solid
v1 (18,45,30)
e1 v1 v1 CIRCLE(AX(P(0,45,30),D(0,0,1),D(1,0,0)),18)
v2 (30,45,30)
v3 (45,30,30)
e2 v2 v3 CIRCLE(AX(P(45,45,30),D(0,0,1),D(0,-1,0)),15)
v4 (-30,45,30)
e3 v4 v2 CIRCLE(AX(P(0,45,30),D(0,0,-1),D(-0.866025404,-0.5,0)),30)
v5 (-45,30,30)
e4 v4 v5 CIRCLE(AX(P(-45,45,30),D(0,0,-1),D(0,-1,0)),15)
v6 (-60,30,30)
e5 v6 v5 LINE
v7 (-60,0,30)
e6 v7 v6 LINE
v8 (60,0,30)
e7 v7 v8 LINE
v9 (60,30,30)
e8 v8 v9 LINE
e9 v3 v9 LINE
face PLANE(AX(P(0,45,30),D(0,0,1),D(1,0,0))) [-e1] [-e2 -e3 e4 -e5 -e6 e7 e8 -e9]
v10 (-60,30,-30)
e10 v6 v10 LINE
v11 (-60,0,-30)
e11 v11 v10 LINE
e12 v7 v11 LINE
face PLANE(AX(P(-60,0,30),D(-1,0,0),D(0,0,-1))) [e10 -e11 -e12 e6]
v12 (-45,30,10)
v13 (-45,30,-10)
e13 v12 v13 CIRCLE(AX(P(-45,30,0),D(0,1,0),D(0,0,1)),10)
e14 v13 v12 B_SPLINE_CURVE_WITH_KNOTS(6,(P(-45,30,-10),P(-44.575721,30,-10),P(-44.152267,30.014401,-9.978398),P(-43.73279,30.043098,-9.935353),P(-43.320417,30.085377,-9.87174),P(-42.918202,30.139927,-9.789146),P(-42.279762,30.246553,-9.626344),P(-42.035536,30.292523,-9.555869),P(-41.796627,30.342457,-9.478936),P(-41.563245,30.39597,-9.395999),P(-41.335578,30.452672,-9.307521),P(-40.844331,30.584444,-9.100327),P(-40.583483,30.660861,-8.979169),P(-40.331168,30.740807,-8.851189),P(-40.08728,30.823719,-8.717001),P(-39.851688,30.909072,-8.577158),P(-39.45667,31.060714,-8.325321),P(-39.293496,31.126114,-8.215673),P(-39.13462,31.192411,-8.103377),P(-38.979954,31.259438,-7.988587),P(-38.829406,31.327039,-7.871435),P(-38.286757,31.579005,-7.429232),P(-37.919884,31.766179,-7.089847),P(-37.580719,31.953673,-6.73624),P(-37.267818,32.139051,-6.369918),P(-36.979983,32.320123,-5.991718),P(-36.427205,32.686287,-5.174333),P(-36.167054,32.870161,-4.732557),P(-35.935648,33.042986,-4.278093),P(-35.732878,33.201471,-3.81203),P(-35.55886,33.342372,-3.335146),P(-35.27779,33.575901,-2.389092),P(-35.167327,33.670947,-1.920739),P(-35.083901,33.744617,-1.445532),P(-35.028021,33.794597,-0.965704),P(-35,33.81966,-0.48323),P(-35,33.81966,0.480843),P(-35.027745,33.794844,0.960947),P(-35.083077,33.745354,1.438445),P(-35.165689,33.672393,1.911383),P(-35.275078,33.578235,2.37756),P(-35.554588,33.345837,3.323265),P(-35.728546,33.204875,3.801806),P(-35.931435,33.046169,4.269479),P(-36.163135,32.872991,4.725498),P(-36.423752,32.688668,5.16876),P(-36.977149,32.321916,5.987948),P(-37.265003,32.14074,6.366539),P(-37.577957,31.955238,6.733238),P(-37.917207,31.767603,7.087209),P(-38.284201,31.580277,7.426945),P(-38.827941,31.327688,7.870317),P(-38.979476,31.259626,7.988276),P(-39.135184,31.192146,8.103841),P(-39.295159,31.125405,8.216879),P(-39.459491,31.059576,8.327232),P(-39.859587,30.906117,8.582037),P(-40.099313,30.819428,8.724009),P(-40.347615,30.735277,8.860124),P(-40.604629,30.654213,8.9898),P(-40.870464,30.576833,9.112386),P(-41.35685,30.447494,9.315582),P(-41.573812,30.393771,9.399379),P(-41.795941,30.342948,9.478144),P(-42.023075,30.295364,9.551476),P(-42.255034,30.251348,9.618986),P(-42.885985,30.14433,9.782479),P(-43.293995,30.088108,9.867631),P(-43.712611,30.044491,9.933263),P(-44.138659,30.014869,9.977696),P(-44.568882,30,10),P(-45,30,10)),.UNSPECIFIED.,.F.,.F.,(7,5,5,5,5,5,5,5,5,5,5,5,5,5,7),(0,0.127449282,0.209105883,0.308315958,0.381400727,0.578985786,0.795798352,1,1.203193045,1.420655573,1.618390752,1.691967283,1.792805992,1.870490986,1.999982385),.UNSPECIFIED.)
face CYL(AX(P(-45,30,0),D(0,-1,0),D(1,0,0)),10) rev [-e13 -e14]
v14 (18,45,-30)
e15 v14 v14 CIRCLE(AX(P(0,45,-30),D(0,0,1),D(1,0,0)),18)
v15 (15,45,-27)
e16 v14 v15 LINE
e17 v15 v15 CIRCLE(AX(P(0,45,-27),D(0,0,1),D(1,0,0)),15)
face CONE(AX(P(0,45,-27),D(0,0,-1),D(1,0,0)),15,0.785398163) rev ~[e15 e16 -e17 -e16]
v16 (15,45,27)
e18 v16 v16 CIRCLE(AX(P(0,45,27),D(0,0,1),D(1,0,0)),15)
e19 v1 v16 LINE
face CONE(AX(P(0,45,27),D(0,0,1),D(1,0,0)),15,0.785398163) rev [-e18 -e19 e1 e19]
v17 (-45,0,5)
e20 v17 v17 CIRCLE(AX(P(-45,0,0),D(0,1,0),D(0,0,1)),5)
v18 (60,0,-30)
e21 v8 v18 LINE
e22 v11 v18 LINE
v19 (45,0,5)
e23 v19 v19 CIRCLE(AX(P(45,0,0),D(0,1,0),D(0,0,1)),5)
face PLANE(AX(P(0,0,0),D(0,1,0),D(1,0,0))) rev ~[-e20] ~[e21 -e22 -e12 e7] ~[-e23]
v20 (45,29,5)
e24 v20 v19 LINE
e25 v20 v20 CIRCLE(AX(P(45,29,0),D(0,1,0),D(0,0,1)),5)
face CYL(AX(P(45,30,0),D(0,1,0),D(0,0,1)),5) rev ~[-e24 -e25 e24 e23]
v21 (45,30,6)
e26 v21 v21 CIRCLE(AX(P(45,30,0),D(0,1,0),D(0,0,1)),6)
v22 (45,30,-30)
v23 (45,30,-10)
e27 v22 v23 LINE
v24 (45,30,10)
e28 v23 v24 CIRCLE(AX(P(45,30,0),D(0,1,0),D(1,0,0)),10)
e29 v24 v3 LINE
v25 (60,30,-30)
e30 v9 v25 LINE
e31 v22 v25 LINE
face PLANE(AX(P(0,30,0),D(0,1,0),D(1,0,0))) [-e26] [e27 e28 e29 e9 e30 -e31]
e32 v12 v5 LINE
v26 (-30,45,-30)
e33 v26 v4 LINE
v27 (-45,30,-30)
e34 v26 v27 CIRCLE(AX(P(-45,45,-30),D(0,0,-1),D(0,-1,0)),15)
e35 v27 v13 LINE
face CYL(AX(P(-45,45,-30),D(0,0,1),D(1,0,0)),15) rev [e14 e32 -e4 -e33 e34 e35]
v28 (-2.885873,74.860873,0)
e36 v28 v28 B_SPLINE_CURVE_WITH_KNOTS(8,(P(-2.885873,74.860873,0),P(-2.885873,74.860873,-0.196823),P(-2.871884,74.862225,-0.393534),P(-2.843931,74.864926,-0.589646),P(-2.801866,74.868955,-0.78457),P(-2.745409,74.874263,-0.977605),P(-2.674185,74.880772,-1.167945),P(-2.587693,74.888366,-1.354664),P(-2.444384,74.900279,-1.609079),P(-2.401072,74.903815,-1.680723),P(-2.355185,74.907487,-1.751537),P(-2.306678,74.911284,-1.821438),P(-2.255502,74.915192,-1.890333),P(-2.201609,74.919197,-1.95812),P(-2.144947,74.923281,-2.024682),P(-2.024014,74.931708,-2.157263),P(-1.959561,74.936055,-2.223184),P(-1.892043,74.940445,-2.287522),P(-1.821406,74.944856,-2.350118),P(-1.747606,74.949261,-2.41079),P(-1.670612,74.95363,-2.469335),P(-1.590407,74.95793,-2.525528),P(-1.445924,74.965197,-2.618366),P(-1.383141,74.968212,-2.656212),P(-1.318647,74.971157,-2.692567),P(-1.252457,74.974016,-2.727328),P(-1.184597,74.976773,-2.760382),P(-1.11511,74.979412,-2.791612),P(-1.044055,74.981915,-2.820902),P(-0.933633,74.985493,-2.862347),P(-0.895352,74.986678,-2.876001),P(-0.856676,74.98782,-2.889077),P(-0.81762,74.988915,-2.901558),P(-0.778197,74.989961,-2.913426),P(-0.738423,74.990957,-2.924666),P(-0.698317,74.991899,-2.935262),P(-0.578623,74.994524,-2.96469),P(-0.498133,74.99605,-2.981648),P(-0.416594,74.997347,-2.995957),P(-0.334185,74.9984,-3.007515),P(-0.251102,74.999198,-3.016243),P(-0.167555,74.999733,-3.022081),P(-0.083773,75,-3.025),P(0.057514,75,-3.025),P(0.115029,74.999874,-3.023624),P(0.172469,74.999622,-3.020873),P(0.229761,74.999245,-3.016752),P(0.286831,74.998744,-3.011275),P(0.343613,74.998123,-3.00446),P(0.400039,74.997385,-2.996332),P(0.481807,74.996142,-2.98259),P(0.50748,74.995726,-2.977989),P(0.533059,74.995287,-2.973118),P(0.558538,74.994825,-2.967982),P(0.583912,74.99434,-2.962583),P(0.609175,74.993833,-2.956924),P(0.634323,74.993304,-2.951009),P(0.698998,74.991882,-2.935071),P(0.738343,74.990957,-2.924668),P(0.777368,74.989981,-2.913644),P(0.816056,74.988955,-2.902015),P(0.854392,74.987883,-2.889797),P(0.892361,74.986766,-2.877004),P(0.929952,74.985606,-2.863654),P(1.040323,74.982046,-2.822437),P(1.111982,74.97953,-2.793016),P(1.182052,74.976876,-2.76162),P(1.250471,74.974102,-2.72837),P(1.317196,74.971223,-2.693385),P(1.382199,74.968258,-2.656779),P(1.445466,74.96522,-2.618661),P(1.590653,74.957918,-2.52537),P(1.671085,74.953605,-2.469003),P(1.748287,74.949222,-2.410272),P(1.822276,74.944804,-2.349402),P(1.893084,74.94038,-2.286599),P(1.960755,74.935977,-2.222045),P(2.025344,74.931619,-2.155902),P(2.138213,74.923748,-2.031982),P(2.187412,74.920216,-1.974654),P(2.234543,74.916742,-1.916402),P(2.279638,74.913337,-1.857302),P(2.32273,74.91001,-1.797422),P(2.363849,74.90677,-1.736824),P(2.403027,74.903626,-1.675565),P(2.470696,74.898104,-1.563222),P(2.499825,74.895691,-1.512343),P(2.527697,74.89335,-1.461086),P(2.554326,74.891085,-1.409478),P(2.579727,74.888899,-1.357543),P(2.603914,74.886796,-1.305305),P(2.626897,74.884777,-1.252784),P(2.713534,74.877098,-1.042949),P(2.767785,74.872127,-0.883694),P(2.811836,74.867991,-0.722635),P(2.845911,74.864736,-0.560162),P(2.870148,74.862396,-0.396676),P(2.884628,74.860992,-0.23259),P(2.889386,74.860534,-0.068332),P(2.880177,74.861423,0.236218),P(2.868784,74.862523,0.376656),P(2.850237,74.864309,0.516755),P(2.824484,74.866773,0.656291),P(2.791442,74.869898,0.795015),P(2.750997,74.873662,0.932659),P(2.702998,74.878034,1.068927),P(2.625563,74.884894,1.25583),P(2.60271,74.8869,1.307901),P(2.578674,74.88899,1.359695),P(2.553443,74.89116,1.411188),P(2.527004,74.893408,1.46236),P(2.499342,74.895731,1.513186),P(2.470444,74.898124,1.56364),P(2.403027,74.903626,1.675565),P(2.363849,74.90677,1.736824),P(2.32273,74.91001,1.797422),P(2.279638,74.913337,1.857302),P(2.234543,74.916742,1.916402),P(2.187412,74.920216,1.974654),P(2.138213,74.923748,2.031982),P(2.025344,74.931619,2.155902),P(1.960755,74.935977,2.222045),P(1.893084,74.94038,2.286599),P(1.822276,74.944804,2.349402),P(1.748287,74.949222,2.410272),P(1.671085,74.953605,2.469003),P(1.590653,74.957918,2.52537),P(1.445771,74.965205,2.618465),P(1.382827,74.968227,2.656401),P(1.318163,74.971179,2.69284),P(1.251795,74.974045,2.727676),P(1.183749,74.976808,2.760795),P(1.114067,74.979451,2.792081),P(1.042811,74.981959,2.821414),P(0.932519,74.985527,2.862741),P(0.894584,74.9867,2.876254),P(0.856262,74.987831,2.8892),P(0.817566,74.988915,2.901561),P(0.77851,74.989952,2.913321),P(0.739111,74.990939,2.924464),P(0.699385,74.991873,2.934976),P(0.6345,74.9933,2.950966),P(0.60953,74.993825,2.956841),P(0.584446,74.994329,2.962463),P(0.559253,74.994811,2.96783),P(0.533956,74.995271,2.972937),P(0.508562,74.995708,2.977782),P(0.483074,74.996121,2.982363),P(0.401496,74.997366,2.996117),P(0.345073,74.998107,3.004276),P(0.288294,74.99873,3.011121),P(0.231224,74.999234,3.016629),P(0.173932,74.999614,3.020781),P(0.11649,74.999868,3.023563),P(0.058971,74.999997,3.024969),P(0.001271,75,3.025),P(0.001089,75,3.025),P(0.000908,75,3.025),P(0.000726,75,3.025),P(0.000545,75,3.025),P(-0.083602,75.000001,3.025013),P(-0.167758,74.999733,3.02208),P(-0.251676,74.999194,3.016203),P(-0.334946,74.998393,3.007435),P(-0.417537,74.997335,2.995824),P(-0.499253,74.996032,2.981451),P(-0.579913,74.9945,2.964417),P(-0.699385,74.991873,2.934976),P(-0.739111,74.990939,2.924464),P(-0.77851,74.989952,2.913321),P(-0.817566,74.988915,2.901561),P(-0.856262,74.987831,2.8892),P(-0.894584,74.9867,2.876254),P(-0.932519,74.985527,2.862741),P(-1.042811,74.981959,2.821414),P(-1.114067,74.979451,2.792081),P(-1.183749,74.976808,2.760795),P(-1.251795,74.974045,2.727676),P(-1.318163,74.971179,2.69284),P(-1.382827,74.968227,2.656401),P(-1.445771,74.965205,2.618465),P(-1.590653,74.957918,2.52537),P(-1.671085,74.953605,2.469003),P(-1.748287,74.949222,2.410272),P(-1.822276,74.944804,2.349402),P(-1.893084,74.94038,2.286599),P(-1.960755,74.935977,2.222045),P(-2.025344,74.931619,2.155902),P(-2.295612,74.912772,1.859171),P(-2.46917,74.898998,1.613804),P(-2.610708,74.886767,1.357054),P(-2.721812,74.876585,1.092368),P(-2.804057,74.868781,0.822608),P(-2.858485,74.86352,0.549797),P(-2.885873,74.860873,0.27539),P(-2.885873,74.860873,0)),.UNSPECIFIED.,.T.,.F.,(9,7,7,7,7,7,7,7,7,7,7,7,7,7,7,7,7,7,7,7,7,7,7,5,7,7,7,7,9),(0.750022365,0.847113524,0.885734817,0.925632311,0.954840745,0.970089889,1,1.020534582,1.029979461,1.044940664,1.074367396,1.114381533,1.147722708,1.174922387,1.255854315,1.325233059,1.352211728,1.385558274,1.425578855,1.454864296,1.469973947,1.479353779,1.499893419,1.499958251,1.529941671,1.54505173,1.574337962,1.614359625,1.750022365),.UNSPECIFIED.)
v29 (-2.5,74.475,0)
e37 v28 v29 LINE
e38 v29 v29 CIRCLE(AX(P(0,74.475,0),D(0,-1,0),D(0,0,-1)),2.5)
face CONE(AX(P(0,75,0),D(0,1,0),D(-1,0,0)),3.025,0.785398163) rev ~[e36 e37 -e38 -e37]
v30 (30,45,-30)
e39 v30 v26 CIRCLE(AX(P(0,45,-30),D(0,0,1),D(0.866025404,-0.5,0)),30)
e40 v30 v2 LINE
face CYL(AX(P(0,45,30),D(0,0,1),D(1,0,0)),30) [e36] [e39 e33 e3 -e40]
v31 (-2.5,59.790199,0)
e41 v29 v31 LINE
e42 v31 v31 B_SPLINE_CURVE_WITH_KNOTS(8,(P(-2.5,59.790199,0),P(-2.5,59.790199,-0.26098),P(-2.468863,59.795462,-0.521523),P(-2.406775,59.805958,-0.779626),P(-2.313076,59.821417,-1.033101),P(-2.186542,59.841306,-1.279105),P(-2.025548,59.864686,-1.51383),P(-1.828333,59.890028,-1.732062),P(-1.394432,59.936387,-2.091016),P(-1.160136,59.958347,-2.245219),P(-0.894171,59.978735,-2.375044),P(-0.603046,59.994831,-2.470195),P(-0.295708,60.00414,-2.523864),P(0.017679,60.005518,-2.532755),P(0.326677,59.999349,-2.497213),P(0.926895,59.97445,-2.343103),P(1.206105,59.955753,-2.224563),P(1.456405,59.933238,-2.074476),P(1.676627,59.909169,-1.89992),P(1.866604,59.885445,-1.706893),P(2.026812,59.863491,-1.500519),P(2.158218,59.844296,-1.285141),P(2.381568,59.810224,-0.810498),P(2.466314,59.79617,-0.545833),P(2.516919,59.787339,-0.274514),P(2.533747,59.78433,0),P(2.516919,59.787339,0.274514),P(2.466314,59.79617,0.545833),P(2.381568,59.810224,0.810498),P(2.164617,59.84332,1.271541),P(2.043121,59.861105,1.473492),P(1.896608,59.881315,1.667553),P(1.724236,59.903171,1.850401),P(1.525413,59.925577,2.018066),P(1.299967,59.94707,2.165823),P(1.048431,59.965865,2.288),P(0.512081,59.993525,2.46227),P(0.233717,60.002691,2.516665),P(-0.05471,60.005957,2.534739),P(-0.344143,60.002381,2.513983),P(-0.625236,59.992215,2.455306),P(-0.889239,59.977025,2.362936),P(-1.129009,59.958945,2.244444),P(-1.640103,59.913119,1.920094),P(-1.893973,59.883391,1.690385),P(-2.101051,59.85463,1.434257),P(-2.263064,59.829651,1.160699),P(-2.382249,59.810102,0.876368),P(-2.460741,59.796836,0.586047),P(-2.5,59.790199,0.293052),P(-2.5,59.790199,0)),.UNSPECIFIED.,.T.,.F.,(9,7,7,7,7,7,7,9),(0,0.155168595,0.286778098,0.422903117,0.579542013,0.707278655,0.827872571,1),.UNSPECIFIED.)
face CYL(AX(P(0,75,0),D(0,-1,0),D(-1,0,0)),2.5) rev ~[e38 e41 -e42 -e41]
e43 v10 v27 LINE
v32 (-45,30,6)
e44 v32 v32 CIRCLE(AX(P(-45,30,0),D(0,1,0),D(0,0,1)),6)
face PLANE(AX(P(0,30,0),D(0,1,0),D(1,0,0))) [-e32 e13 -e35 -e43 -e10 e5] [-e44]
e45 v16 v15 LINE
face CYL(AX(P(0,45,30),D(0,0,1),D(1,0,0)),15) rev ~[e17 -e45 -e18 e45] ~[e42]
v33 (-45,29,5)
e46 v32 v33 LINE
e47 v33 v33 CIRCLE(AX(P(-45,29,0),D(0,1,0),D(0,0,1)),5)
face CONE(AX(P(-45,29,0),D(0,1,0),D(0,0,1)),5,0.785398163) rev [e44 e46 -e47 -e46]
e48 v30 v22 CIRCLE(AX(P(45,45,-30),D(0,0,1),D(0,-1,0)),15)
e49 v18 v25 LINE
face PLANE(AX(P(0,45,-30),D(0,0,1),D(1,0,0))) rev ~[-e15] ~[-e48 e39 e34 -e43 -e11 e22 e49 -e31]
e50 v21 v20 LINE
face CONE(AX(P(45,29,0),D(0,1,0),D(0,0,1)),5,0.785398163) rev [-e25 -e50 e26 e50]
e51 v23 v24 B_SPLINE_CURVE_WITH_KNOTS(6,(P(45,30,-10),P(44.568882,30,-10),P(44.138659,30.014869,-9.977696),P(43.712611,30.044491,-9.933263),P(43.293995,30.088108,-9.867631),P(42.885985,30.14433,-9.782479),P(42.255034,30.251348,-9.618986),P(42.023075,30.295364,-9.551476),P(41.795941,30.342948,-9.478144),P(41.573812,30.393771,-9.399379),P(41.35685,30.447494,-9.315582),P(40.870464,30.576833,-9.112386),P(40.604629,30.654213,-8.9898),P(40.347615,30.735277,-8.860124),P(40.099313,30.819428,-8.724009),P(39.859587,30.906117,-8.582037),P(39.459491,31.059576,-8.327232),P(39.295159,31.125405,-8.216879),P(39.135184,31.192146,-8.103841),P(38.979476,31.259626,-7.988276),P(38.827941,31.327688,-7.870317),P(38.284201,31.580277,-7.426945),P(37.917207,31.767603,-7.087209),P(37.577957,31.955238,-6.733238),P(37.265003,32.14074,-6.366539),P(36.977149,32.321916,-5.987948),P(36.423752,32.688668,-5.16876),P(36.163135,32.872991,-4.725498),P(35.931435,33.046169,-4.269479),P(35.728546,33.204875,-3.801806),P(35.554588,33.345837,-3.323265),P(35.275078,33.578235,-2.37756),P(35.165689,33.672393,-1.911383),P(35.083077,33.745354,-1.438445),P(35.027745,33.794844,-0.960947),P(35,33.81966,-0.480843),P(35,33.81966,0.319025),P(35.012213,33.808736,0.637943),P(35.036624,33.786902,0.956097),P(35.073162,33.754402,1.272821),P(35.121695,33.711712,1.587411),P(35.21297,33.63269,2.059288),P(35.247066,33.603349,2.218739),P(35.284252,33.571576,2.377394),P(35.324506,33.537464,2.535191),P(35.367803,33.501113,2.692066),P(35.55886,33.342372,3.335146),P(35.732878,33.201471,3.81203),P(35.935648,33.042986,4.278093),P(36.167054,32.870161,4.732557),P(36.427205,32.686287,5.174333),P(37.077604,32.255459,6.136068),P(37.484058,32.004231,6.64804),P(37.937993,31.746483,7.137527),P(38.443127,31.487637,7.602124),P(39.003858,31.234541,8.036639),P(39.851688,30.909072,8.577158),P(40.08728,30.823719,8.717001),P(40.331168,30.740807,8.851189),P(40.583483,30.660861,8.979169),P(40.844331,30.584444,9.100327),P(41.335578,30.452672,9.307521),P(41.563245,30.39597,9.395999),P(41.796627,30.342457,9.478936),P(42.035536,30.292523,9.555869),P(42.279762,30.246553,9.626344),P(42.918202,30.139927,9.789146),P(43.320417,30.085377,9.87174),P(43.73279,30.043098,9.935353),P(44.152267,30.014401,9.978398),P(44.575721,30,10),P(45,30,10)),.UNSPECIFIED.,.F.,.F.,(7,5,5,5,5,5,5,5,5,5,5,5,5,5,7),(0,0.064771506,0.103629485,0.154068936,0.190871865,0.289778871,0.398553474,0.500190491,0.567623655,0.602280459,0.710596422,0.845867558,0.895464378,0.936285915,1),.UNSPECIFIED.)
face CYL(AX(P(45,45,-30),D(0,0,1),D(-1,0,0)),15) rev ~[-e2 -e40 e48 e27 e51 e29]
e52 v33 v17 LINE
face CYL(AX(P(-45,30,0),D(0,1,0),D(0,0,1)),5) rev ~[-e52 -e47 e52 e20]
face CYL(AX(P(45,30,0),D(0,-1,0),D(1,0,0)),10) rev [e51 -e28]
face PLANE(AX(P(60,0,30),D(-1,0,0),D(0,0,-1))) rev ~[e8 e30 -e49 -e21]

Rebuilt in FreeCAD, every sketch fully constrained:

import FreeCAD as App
import Part
import Sketcher
Q = App.Units.Quantity


def edges_at(feature, points):
    """Names of the edges that pass closest to the given points."""
    edges = feature.Shape.Edges
    near = lambda p: min(range(len(edges)), key=lambda i: edges[i].distToShape(Part.Vertex(*p))[0])
    return sorted({f"Edge{near(p) + 1}" for p in points})


def add_polygon(sketch, points):
    """Adds a closed chain of lines whose ends are joined by coincident constraints."""
    first, n = sketch.GeometryCount, len(points)
    for a, b in zip(points, points[1:] + points[:1]):
        sketch.addGeometry(Part.LineSegment(App.Vector(*a, 0), App.Vector(*b, 0)), False)
    for i in range(n):
        sketch.addConstraint(Sketcher.Constraint("Coincident", first + i, 2, first + (i + 1) % n, 1))

doc = App.newDocument("Part")
params = doc.addObject("Spreadsheet::Sheet", "Params")
for row, (alias, value) in enumerate([
    ("sketch1_width", "120 mm"),
    ("sketch1_height", "60 mm"),
    ("pad1_length", "30 mm"),
    ("sketch2_diameter", "60 mm"),
    ("pad2_length", "60 mm"),
    ("sketch3_diameter", "30 mm"),
    ("chamfer_size", "3 mm"),
    ("fillet_radius", "15 mm"),
    ("sketch4_diameter", "20 mm"),
    ("pocket2_length", "5 mm"),
    ("sketch5_diameter", "10 mm"),
    ("chamfer2_size", "1 mm"),
    ("sketch6_diameter", "5 mm"),
    ("hole_diameter", "5 mm"),
    ("hole_depth", "29.999 mm"),
    ("hole_csink_diameter", "6.05 mm"),
], start=1):
    params.set(f"A{row}", alias)
    params.set(f"B{row}", "=" + value)
    params.setAlias(f"B{row}", alias)

body = doc.addObject("PartDesign::Body", "Body")

sketch1 = body.newObject("Sketcher::SketchObject", "Sketch")
sketch1.AttachmentSupport = (doc.getObject("XZ_Plane"), [""])
sketch1.MapMode = "FlatFace"
add_polygon(sketch1, [(-60, -30), (-60, 30), (60, 30), (60, -30)])
sketch1.addConstraint([
    Sketcher.Constraint("Vertical", 0),
    Sketcher.Constraint("Horizontal", 1),
    Sketcher.Constraint("Vertical", 2),
    Sketcher.Constraint("Horizontal", 3),
    Sketcher.Constraint("Symmetric", 0, 2, 2, 2, -1, 1),
    Sketcher.Constraint("DistanceX", 1, 1, 1, 2, Q("120 mm")),
    Sketcher.Constraint("DistanceY", 0, 1, 0, 2, Q("60 mm")),
])
sketch1.setExpression("Constraints[9]", "Params.sketch1_width")
sketch1.setExpression("Constraints[10]", "Params.sketch1_height")
pad1 = body.newObject("PartDesign::Pad", "Pad")
pad1.Profile = sketch1
pad1.setExpression("Length", "Params.pad1_length")
pad1.Reversed = True

sketch2 = body.newObject("Sketcher::SketchObject", "Sketch001")
sketch2.AttachmentSupport = (doc.getObject("XY_Plane"), [""])
sketch2.MapMode = "FlatFace"
sketch2.AttachmentOffset = App.Placement(App.Vector(0, 0, 30), App.Rotation())
sketch2.addGeometry(Part.Circle(App.Vector(0, 45, 0), App.Vector(0, 0, 1), 30), False)
sketch2.addConstraint([
    Sketcher.Constraint("PointOnObject", 0, 3, -2),
    Sketcher.Constraint("Diameter", 0, Q("60 mm")),
    Sketcher.Constraint("DistanceY", -1, 1, 0, 3, Q("45 mm")),
])
sketch2.setExpression("Constraints[1]", "Params.sketch2_diameter")
pad2 = body.newObject("PartDesign::Pad", "Pad001")
pad2.Profile = sketch2
pad2.setExpression("Length", "Params.pad2_length")
pad2.Reversed = True

sketch3 = body.newObject("Sketcher::SketchObject", "Sketch002")
sketch3.AttachmentSupport = (doc.getObject("XY_Plane"), [""])
sketch3.MapMode = "FlatFace"
sketch3.AttachmentOffset = App.Placement(App.Vector(0, 0, 30), App.Rotation())
sketch3.addGeometry(Part.Circle(App.Vector(0, 45, 0), App.Vector(0, 0, 1), 15), False)
sketch3.addConstraint([
    Sketcher.Constraint("PointOnObject", 0, 3, -2),
    Sketcher.Constraint("Diameter", 0, Q("30 mm")),
    Sketcher.Constraint("DistanceY", -1, 1, 0, 3, Q("45 mm")),
])
sketch3.setExpression("Constraints[1]", "Params.sketch3_diameter")
pocket1 = body.newObject("PartDesign::Pocket", "Pocket")
pocket1.Profile = sketch3
pocket1.Type = "ThroughAll"
doc.recompute()

chamfer = body.newObject("PartDesign::Chamfer", "Chamfer")
chamfer.Base = (pocket1, edges_at(pocket1, [(-15, 45, -30), (-15, 45, 30)]))
chamfer.setExpression("Size", "Params.chamfer_size")
doc.recompute()

fillet = body.newObject("PartDesign::Fillet", "Fillet")
fillet.Base = (chamfer, edges_at(chamfer, [(-25.981, 30, 0), (25.981, 30, 0)]))
fillet.setExpression("Radius", "Params.fillet_radius")

sketch4 = body.newObject("Sketcher::SketchObject", "Sketch003")
sketch4.AttachmentSupport = (doc.getObject("XZ_Plane"), [""])
sketch4.MapMode = "FlatFace"
sketch4.AttachmentOffset = App.Placement(App.Vector(0, 0, -30), App.Rotation())
sketch4.addGeometry([
    Part.Circle(App.Vector(-45, 0, 0), App.Vector(0, 0, 1), 10),
    Part.Circle(App.Vector(45, 0, 0), App.Vector(0, 0, 1), 10),
], False)
sketch4.addConstraint([
    Sketcher.Constraint("Equal", 0, 1),
    Sketcher.Constraint("Symmetric", 0, 3, 1, 3, -1, 1),
    Sketcher.Constraint("PointOnObject", 0, 3, -1),
    Sketcher.Constraint("Diameter", 0, Q("20 mm")),
    Sketcher.Constraint("DistanceX", 0, 3, -1, 1, Q("45 mm")),
])
sketch4.setExpression("Constraints[3]", "Params.sketch4_diameter")
pocket2 = body.newObject("PartDesign::Pocket", "Pocket001")
pocket2.Profile = sketch4
pocket2.setExpression("Length", "Params.pocket2_length")

sketch5 = body.newObject("Sketcher::SketchObject", "Sketch004")
sketch5.AttachmentSupport = (doc.getObject("XZ_Plane"), [""])
sketch5.MapMode = "FlatFace"
sketch5.AttachmentOffset = App.Placement(App.Vector(0, 0, -30), App.Rotation())
sketch5.addGeometry([
    Part.Circle(App.Vector(-45, 0, 0), App.Vector(0, 0, 1), 5),
    Part.Circle(App.Vector(45, 0, 0), App.Vector(0, 0, 1), 5),
], False)
sketch5.addConstraint([
    Sketcher.Constraint("Equal", 0, 1),
    Sketcher.Constraint("Symmetric", 0, 3, 1, 3, -1, 1),
    Sketcher.Constraint("PointOnObject", 0, 3, -1),
    Sketcher.Constraint("Diameter", 0, Q("10 mm")),
    Sketcher.Constraint("DistanceX", 0, 3, -1, 1, Q("45 mm")),
])
sketch5.setExpression("Constraints[3]", "Params.sketch5_diameter")
pocket3 = body.newObject("PartDesign::Pocket", "Pocket002")
pocket3.Profile = sketch5
pocket3.Type = "ThroughAll"
pocket3.Reversed = True
doc.recompute()

chamfer2 = body.newObject("PartDesign::Chamfer", "Chamfer001")
chamfer2.Base = (pocket3, edges_at(pocket3, [(-45, 30, -5), (45, 30, -5)]))
chamfer2.setExpression("Size", "Params.chamfer2_size")

sketch6 = body.newObject("Sketcher::SketchObject", "Sketch005")
sketch6.AttachmentSupport = (doc.getObject("XZ_Plane"), [""])
sketch6.MapMode = "FlatFace"
sketch6.AttachmentOffset = App.Placement(App.Vector(0, 0, -75), App.Rotation())
sketch6.addGeometry(Part.Circle(App.Vector(0, 0, 0), App.Vector(0, 0, 1), 2.5), False)
sketch6.addConstraint([
    Sketcher.Constraint("Coincident", 0, 3, -1, 1),
    Sketcher.Constraint("Diameter", 0, Q("5 mm")),
])
sketch6.setExpression("Constraints[1]", "Params.sketch6_diameter")
doc.recompute()
hole = body.newObject("PartDesign::Hole", "Hole")
hole.Profile = sketch6
hole.ThreadType = "None"
hole.setExpression("Diameter", "Params.hole_diameter")
hole.DepthType = "Dimension"
hole.setExpression("Depth", "Params.hole_depth")
hole.DrillPoint = "Angled"
hole.DrillPointAngle = 118
hole.HoleCutType = "Countersink"
hole.setExpression("HoleCutDiameter", "Params.hole_csink_diameter")
hole.HoleCutCountersinkAngle = 90
hole.Reversed = True

doc.recompute()
